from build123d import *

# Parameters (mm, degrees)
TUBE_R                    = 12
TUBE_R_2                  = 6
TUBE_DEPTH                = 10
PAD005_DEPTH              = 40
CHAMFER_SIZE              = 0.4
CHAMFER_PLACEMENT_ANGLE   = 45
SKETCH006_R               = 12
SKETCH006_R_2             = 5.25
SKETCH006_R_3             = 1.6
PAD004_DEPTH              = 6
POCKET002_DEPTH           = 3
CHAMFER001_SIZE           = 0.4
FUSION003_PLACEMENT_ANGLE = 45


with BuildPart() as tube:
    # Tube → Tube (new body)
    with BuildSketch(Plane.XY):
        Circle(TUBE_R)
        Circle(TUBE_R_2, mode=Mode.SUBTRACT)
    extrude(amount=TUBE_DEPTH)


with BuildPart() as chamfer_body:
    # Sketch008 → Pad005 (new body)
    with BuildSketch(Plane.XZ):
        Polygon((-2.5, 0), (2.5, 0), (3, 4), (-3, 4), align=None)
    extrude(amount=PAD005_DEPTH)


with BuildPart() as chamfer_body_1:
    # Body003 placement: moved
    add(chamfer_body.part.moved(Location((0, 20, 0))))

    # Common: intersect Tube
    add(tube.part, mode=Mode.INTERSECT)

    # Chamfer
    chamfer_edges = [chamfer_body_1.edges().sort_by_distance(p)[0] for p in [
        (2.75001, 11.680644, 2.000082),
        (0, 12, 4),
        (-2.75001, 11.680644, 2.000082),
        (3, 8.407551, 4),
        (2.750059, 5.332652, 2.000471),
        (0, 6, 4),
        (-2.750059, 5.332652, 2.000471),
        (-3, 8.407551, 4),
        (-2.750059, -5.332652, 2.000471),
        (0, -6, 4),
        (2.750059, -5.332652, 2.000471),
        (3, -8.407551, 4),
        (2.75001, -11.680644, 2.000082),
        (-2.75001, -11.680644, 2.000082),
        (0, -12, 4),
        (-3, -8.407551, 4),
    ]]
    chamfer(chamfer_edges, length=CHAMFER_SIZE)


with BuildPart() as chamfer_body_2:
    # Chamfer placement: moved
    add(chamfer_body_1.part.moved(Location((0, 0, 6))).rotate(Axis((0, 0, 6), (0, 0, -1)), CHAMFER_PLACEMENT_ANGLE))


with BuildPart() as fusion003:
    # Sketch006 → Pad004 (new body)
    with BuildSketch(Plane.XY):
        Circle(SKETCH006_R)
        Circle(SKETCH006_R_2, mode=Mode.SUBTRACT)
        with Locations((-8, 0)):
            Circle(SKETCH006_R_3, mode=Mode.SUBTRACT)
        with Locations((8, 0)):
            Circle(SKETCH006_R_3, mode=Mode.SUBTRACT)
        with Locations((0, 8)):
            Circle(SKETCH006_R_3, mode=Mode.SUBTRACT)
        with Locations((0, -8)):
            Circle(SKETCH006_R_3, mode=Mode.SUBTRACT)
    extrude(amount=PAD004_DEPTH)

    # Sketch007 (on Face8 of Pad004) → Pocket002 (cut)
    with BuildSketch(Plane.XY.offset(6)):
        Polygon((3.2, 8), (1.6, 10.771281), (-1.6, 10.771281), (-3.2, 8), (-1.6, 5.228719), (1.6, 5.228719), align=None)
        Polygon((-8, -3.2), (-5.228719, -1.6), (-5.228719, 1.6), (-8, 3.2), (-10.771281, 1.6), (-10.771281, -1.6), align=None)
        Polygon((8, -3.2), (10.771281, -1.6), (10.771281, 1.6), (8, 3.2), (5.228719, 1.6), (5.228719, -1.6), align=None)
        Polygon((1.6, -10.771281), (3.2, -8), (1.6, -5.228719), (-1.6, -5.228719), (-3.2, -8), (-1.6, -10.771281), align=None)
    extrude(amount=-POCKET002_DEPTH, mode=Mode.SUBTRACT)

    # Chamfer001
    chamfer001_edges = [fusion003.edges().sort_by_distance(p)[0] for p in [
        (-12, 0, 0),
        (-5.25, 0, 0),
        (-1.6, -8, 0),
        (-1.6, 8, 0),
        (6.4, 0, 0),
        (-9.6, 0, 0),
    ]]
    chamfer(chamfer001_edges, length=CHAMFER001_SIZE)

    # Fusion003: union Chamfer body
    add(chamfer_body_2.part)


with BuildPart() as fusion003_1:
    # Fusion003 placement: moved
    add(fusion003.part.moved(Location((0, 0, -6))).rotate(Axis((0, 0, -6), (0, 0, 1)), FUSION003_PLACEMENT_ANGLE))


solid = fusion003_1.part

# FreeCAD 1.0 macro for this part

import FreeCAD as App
import Part
import Sketcher
from FreeCAD import Vector
Q = App.Units.Quantity


def edges_at(feature, points):
    """Names of the edges that pass closest to the given points."""
    edges = feature.Shape.Edges
    near = lambda p: min(range(len(edges)), key=lambda i: edges[i].distToShape(Part.Vertex(*p))[0])
    return sorted({f"Edge{near(p) + 1}" for p in points})

doc = App.newDocument("Part")
body = doc.addObject("PartDesign::Body", "Body")

sketch1 = doc.addObject("Sketcher::SketchObject", "Sketch")
body.addObject(sketch1)
sketch1.AttachmentSupport = (doc.XY_Plane, [""])
sketch1.MapMode = "FlatFace"
sketch1.addGeometry(Part.Circle(Vector(0, 0, 0), Vector(0, 0, 1), 12), False)
sketch1.addGeometry(Part.Circle(Vector(0, 0, 0), Vector(0, 0, 1), 6), False)
sketch1.addConstraint(Sketcher.Constraint("Coincident", 0, 3, -1, 1))
sketch1.addConstraint(Sketcher.Constraint("Coincident", 1, 3, -1, 1))
sketch1.addConstraint(Sketcher.Constraint("Diameter", 0, Q("24 mm")))
sketch1.addConstraint(Sketcher.Constraint("Diameter", 1, Q("12 mm")))
pad1 = doc.addObject("PartDesign::Pad", "Pad")
body.addObject(pad1)
pad1.Profile = sketch1
pad1.Length = 10
body2 = doc.addObject("PartDesign::Body", "Body001")

sketch2 = doc.addObject("Sketcher::SketchObject", "Sketch001")
body2.addObject(sketch2)
sketch2.AttachmentSupport = (doc.getObject("XZ_Plane001"), [""])
sketch2.MapMode = "FlatFace"
sketch2.addGeometry(Part.LineSegment(Vector(-2.5, 0, 0), Vector(2.5, 0, 0)), False)
sketch2.addGeometry(Part.LineSegment(Vector(2.5, 0, 0), Vector(3, 4, 0)), False)
sketch2.addGeometry(Part.LineSegment(Vector(3, 4, 0), Vector(-3, 4, 0)), False)
sketch2.addGeometry(Part.LineSegment(Vector(-3, 4, 0), Vector(-2.5, 0, 0)), False)
sketch2.addConstraint(Sketcher.Constraint("Coincident", 0, 2, 1, 1))
sketch2.addConstraint(Sketcher.Constraint("Coincident", 1, 2, 2, 1))
sketch2.addConstraint(Sketcher.Constraint("Coincident", 2, 2, 3, 1))
sketch2.addConstraint(Sketcher.Constraint("Coincident", 3, 2, 0, 1))
sketch2.addConstraint(Sketcher.Constraint("Horizontal", 0))
sketch2.addConstraint(Sketcher.Constraint("Horizontal", 2))
sketch2.addConstraint(Sketcher.Constraint("Symmetric", 0, 2, 3, 2, -1, 1))
sketch2.addConstraint(Sketcher.Constraint("Equal", 1, 3))
sketch2.addConstraint(Sketcher.Constraint("DistanceX", 0, 1, 0, 2, Q("5 mm")))
sketch2.addConstraint(Sketcher.Constraint("DistanceX", 2, 2, 2, 1, Q("6 mm")))
sketch2.addConstraint(Sketcher.Constraint("DistanceY", -1, 1, 1, 2, Q("4 mm")))
pad2 = doc.addObject("PartDesign::Pad", "Pad001")
body2.addObject(pad2)
pad2.Profile = sketch2
pad2.Length = 40
body3 = doc.addObject("PartDesign::Body", "Body002")
body3.AllowCompound = True
doc.recompute()

body2.Placement = App.Placement(Vector(0, 20, 0), App.Rotation(Vector(0, 0, 1), 0))
boolean = doc.addObject("PartDesign::Boolean", "Boolean")
body3.addObject(boolean)
boolean.Type = "Fuse"
boolean.addObjects([body2])
doc.recompute()

boolean2 = doc.addObject("PartDesign::Boolean", "Boolean001")
body3.addObject(boolean2)
boolean2.Type = "Common"
boolean2.addObjects([body])
doc.recompute()

chamfer = doc.addObject("PartDesign::Chamfer", "Chamfer")
body3.addObject(chamfer)
chamfer.Base = (boolean2, edges_at(boolean2, [
    (2.75, 11.681, 2),
    (0, 12, 4),
    (-2.75, 11.681, 2),
    (3, 8.408, 4),
    (2.75, 5.333, 2),
    (0, 6, 4),
    (-2.75, 5.333, 2),
    (-3, 8.408, 4),
    (-2.75, -5.333, 2),
    (0, -6, 4),
    (2.75, -5.333, 2),
    (3, -8.408, 4),
    (2.75, -11.681, 2),
    (-2.75, -11.681, 2),
    (0, -12, 4),
    (-3, -8.408, 4),
]))
chamfer.Size = 0.4
body4 = doc.addObject("PartDesign::Body", "Body003")
body4.AllowCompound = True
doc.recompute()

body3.Placement = App.Placement(Vector(0, 0, 6), App.Rotation(Vector(0, 0, -1), 45))
boolean3 = doc.addObject("PartDesign::Boolean", "Boolean002")
body4.addObject(boolean3)
boolean3.Type = "Fuse"
boolean3.addObjects([body3])
body5 = doc.addObject("PartDesign::Body", "Body004")

sketch3 = doc.addObject("Sketcher::SketchObject", "Sketch002")
body5.addObject(sketch3)
sketch3.AttachmentSupport = (doc.getObject("XY_Plane004"), [""])
sketch3.MapMode = "FlatFace"
sketch3.addGeometry(Part.Circle(Vector(0, 0, 0), Vector(0, 0, 1), 12), False)
sketch3.addGeometry(Part.Circle(Vector(0, -8, 0), Vector(0, 0, 1), 1.6), False)
sketch3.addGeometry(Part.Circle(Vector(-8, 0, 0), Vector(0, 0, 1), 1.6), False)
sketch3.addGeometry(Part.Circle(Vector(0, 0, 0), Vector(0, 0, 1), 5.2), False)
sketch3.addGeometry(Part.Circle(Vector(8, 0, 0), Vector(0, 0, 1), 1.6), False)
sketch3.addGeometry(Part.Circle(Vector(0, 8, 0), Vector(0, 0, 1), 1.6), False)
sketch3.addConstraint(Sketcher.Constraint("Coincident", 0, 3, -1, 1))
sketch3.addConstraint(Sketcher.Constraint("Coincident", 3, 3, -1, 1))
sketch3.addConstraint(Sketcher.Constraint("Equal", 1, 2))
sketch3.addConstraint(Sketcher.Constraint("Equal", 2, 4))
sketch3.addConstraint(Sketcher.Constraint("Equal", 4, 5))
sketch3.addConstraint(Sketcher.Constraint("Symmetric", 2, 3, 4, 3, -1, 1))
sketch3.addConstraint(Sketcher.Constraint("Symmetric", 1, 3, 5, 3, -1, 1))
sketch3.addConstraint(Sketcher.Constraint("PointOnObject", 1, 3, -2))
sketch3.addConstraint(Sketcher.Constraint("PointOnObject", 2, 3, -1))
sketch3.addConstraint(Sketcher.Constraint("Diameter", 0, Q("24 mm")))
sketch3.addConstraint(Sketcher.Constraint("Diameter", 1, Q("3.2 mm")))
sketch3.addConstraint(Sketcher.Constraint("Diameter", 3, Q("10.5 mm")))
sketch3.addConstraint(Sketcher.Constraint("DistanceY", 1, 3, -1, 1, Q("8 mm")))
sketch3.addConstraint(Sketcher.Constraint("DistanceX", 2, 3, -1, 1, Q("8 mm")))
pad3 = doc.addObject("PartDesign::Pad", "Pad002")
body5.addObject(pad3)
pad3.Profile = sketch3
pad3.Length = 6

sketch4 = doc.addObject("Sketcher::SketchObject", "Sketch003")
body5.addObject(sketch4)
sketch4.AttachmentSupport = (doc.getObject("XY_Plane004"), [""])
sketch4.MapMode = "FlatFace"
sketch4.AttachmentOffset = App.Placement(Vector(0, 0, 6), App.Rotation())
sketch4.addGeometry(Part.LineSegment(Vector(3.2, 8, 0), Vector(1.6, 10.8, 0)), False)
sketch4.addGeometry(Part.LineSegment(Vector(1.6, 10.8, 0), Vector(-1.6, 10.8, 0)), False)
sketch4.addGeometry(Part.LineSegment(Vector(-1.6, 10.8, 0), Vector(-3.2, 8, 0)), False)
sketch4.addGeometry(Part.LineSegment(Vector(-3.2, 8, 0), Vector(-1.6, 5.2, 0)), False)
sketch4.addGeometry(Part.LineSegment(Vector(-1.6, 5.2, 0), Vector(1.6, 5.2, 0)), False)
sketch4.addGeometry(Part.LineSegment(Vector(1.6, 5.2, 0), Vector(3.2, 8, 0)), False)
sketch4.addGeometry(Part.LineSegment(Vector(-8, -3.2, 0), Vector(-5.2, -1.6, 0)), False)
sketch4.addGeometry(Part.LineSegment(Vector(-5.2, -1.6, 0), Vector(-5.2, 1.6, 0)), False)
sketch4.addGeometry(Part.LineSegment(Vector(-5.2, 1.6, 0), Vector(-8, 3.2, 0)), False)
sketch4.addGeometry(Part.LineSegment(Vector(-8, 3.2, 0), Vector(-10.8, 1.6, 0)), False)
sketch4.addGeometry(Part.LineSegment(Vector(-10.8, 1.6, 0), Vector(-10.8, -1.6, 0)), False)
sketch4.addGeometry(Part.LineSegment(Vector(-10.8, -1.6, 0), Vector(-8, -3.2, 0)), False)
sketch4.addGeometry(Part.LineSegment(Vector(8, -3.2, 0), Vector(10.8, -1.6, 0)), False)
sketch4.addGeometry(Part.LineSegment(Vector(10.8, -1.6, 0), Vector(10.8, 1.6, 0)), False)
sketch4.addGeometry(Part.LineSegment(Vector(10.8, 1.6, 0), Vector(8, 3.2, 0)), False)
sketch4.addGeometry(Part.LineSegment(Vector(8, 3.2, 0), Vector(5.2, 1.6, 0)), False)
sketch4.addGeometry(Part.LineSegment(Vector(5.2, 1.6, 0), Vector(5.2, -1.6, 0)), False)
sketch4.addGeometry(Part.LineSegment(Vector(5.2, -1.6, 0), Vector(8, -3.2, 0)), False)
sketch4.addGeometry(Part.LineSegment(Vector(1.6, -10.8, 0), Vector(3.2, -8, 0)), False)
sketch4.addGeometry(Part.LineSegment(Vector(3.2, -8, 0), Vector(1.6, -5.2, 0)), False)
sketch4.addGeometry(Part.LineSegment(Vector(1.6, -5.2, 0), Vector(-1.6, -5.2, 0)), False)
sketch4.addGeometry(Part.LineSegment(Vector(-1.6, -5.2, 0), Vector(-3.2, -8, 0)), False)
sketch4.addGeometry(Part.LineSegment(Vector(-3.2, -8, 0), Vector(-1.6, -10.8, 0)), False)
sketch4.addGeometry(Part.LineSegment(Vector(-1.6, -10.8, 0), Vector(1.6, -10.8, 0)), False)
sketch4.addConstraint(Sketcher.Constraint("Coincident", 0, 2, 1, 1))
sketch4.addConstraint(Sketcher.Constraint("Coincident", 1, 2, 2, 1))
sketch4.addConstraint(Sketcher.Constraint("Coincident", 2, 2, 3, 1))
sketch4.addConstraint(Sketcher.Constraint("Coincident", 3, 2, 4, 1))
sketch4.addConstraint(Sketcher.Constraint("Coincident", 4, 2, 5, 1))
sketch4.addConstraint(Sketcher.Constraint("Coincident", 5, 2, 0, 1))
sketch4.addConstraint(Sketcher.Constraint("Coincident", 6, 2, 7, 1))
sketch4.addConstraint(Sketcher.Constraint("Coincident", 7, 2, 8, 1))
sketch4.addConstraint(Sketcher.Constraint("Coincident", 8, 2, 9, 1))
sketch4.addConstraint(Sketcher.Constraint("Coincident", 9, 2, 10, 1))
sketch4.addConstraint(Sketcher.Constraint("Coincident", 10, 2, 11, 1))
sketch4.addConstraint(Sketcher.Constraint("Coincident", 11, 2, 6, 1))
sketch4.addConstraint(Sketcher.Constraint("Coincident", 12, 2, 13, 1))
sketch4.addConstraint(Sketcher.Constraint("Coincident", 13, 2, 14, 1))
sketch4.addConstraint(Sketcher.Constraint("Coincident", 14, 2, 15, 1))
sketch4.addConstraint(Sketcher.Constraint("Coincident", 15, 2, 16, 1))
sketch4.addConstraint(Sketcher.Constraint("Coincident", 16, 2, 17, 1))
sketch4.addConstraint(Sketcher.Constraint("Coincident", 17, 2, 12, 1))
sketch4.addConstraint(Sketcher.Constraint("Coincident", 18, 2, 19, 1))
sketch4.addConstraint(Sketcher.Constraint("Coincident", 19, 2, 20, 1))
sketch4.addConstraint(Sketcher.Constraint("Coincident", 20, 2, 21, 1))
sketch4.addConstraint(Sketcher.Constraint("Coincident", 21, 2, 22, 1))
sketch4.addConstraint(Sketcher.Constraint("Coincident", 22, 2, 23, 1))
sketch4.addConstraint(Sketcher.Constraint("Coincident", 23, 2, 18, 1))
sketch4.addConstraint(Sketcher.Constraint("Horizontal", 1))
sketch4.addConstraint(Sketcher.Constraint("Horizontal", 4))
sketch4.addConstraint(Sketcher.Constraint("Vertical", 7))
sketch4.addConstraint(Sketcher.Constraint("Vertical", 10))
sketch4.addConstraint(Sketcher.Constraint("Vertical", 13))
sketch4.addConstraint(Sketcher.Constraint("Vertical", 16))
sketch4.addConstraint(Sketcher.Constraint("Horizontal", 20))
sketch4.addConstraint(Sketcher.Constraint("Horizontal", 23))
sketch4.addConstraint(Sketcher.Constraint("Symmetric", 9, 2, 12, 2, -1, 1))
sketch4.addConstraint(Sketcher.Constraint("Symmetric", 11, 2, 14, 2, -1, 1))
sketch4.addConstraint(Sketcher.Constraint("Symmetric", 6, 2, 15, 2, -1, 1))
sketch4.addConstraint(Sketcher.Constraint("Symmetric", 8, 2, 17, 2, -1, 1))
sketch4.addConstraint(Sketcher.Constraint("Symmetric", 2, 2, 18, 2, -1, 1))
sketch4.addConstraint(Sketcher.Constraint("Symmetric", 3, 2, 19, 2, -1, 1))
sketch4.addConstraint(Sketcher.Constraint("Symmetric", 5, 2, 21, 2, -1, 1))
sketch4.addConstraint(Sketcher.Constraint("Symmetric", 0, 2, 22, 2, -1, 1))
sketch4.addConstraint(Sketcher.Constraint("Symmetric", 2, 2, 5, 2, -2))
sketch4.addConstraint(Sketcher.Constraint("Symmetric", 8, 2, 14, 2, -2))
sketch4.addConstraint(Sketcher.Constraint("Parallel", 0, 3))
sketch4.addConstraint(Sketcher.Constraint("Parallel", 2, 5))
sketch4.addConstraint(Sketcher.Constraint("Perpendicular", 3, 6))
sketch4.addConstraint(Sketcher.Constraint("Perpendicular", 5, 8))
sketch4.addConstraint(Sketcher.Constraint("Parallel", 6, 9))
sketch4.addConstraint(Sketcher.Constraint("Parallel", 8, 11))
sketch4.addConstraint(Sketcher.Constraint("Parallel", 11, 14))
sketch4.addConstraint(Sketcher.Constraint("Parallel", 14, 17))
sketch4.addConstraint(Sketcher.Constraint("Perpendicular", 17, 18))
sketch4.addConstraint(Sketcher.Constraint("Parallel", 18, 21))
sketch4.addConstraint(Sketcher.Constraint("Horizontal", 7, 2, 9, 2))
sketch4.addConstraint(Sketcher.Constraint("Horizontal", 6, 2, 10, 2))
sketch4.addConstraint(Sketcher.Constraint("Vertical", 1, 2, 3, 2))
sketch4.addConstraint(Sketcher.Constraint("Equal", 23, 7))
sketch4.addConstraint(Sketcher.Constraint("Equal", 5, 6))
sketch4.addConstraint(Sketcher.Constraint("Angle", 0, Q("120.000003 deg")))
sketch4.addConstraint(Sketcher.Constraint("DistanceX", 1, 2, 1, 1, Q("3.2 mm")))
sketch4.addConstraint(Sketcher.Constraint("DistanceY", -1, 1, 2, 2, Q("8 mm")))
sketch4.addConstraint(Sketcher.Constraint("DistanceX", 8, 2, -1, 1, Q("8 mm")))
sketch4.addConstraint(Sketcher.Constraint("Distance", 0, Q("3.2 mm")))
pocket1 = doc.addObject("PartDesign::Pocket", "Pocket")
body5.addObject(pocket1)
pocket1.Profile = sketch4
pocket1.Length = 3
doc.recompute()

chamfer2 = doc.addObject("PartDesign::Chamfer", "Chamfer001")
body5.addObject(chamfer2)
chamfer2.Base = (pocket1, edges_at(pocket1, [
    (-12, 0, 0),
    (-5.25, 0, 0),
    (-1.6, -8, 0),
    (-1.6, 8, 0),
    (6.4, 0, 0),
    (-9.6, 0, 0),
]))
chamfer2.Size = 0.4
doc.recompute()

boolean4 = doc.addObject("PartDesign::Boolean", "Boolean003")
body5.addObject(boolean4)
boolean4.Type = "Fuse"
boolean4.addObjects([body4])
body6 = doc.addObject("PartDesign::Body", "Body005")
doc.recompute()

body5.Placement = App.Placement(Vector(0, 0, -6), App.Rotation(Vector(0, 0, 1), 45))
boolean5 = doc.addObject("PartDesign::Boolean", "Boolean004")
body6.addObject(boolean5)
boolean5.Type = "Fuse"
boolean5.addObjects([body5])

doc.recompute()
